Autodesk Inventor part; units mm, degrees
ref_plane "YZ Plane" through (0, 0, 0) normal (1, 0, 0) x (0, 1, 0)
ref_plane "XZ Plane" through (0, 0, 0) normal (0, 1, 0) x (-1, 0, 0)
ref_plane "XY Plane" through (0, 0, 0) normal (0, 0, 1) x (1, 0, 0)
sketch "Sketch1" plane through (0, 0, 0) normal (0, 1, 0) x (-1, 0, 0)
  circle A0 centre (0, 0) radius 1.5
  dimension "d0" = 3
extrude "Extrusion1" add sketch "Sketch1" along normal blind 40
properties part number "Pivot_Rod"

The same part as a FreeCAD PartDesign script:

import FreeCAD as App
import Part
import Sketcher
Q = App.Units.Quantity

doc = App.newDocument("Part")
body = doc.addObject("PartDesign::Body", "Body")

# Sketch on XZ plane
sketch1 = body.newObject("Sketcher::SketchObject", "Sketch")
sketch1.AttachmentSupport = (doc.getObject("XZ_Plane"), [""])
sketch1.MapMode = "FlatFace"
sketch1.addGeometry(Part.Circle(App.Vector(0, 0, 0), App.Vector(0, 0, 1), 1.5), False)
sketch1.addConstraint([
    Sketcher.Constraint("Coincident", 0, 3, -1, 1),
    Sketcher.Constraint("Diameter", 0, Q("3 mm")),
])
pad1 = body.newObject("PartDesign::Pad", "Pad")
pad1.Profile = sketch1
pad1.Length = 40
pad1.Reversed = True

doc.recompute()
